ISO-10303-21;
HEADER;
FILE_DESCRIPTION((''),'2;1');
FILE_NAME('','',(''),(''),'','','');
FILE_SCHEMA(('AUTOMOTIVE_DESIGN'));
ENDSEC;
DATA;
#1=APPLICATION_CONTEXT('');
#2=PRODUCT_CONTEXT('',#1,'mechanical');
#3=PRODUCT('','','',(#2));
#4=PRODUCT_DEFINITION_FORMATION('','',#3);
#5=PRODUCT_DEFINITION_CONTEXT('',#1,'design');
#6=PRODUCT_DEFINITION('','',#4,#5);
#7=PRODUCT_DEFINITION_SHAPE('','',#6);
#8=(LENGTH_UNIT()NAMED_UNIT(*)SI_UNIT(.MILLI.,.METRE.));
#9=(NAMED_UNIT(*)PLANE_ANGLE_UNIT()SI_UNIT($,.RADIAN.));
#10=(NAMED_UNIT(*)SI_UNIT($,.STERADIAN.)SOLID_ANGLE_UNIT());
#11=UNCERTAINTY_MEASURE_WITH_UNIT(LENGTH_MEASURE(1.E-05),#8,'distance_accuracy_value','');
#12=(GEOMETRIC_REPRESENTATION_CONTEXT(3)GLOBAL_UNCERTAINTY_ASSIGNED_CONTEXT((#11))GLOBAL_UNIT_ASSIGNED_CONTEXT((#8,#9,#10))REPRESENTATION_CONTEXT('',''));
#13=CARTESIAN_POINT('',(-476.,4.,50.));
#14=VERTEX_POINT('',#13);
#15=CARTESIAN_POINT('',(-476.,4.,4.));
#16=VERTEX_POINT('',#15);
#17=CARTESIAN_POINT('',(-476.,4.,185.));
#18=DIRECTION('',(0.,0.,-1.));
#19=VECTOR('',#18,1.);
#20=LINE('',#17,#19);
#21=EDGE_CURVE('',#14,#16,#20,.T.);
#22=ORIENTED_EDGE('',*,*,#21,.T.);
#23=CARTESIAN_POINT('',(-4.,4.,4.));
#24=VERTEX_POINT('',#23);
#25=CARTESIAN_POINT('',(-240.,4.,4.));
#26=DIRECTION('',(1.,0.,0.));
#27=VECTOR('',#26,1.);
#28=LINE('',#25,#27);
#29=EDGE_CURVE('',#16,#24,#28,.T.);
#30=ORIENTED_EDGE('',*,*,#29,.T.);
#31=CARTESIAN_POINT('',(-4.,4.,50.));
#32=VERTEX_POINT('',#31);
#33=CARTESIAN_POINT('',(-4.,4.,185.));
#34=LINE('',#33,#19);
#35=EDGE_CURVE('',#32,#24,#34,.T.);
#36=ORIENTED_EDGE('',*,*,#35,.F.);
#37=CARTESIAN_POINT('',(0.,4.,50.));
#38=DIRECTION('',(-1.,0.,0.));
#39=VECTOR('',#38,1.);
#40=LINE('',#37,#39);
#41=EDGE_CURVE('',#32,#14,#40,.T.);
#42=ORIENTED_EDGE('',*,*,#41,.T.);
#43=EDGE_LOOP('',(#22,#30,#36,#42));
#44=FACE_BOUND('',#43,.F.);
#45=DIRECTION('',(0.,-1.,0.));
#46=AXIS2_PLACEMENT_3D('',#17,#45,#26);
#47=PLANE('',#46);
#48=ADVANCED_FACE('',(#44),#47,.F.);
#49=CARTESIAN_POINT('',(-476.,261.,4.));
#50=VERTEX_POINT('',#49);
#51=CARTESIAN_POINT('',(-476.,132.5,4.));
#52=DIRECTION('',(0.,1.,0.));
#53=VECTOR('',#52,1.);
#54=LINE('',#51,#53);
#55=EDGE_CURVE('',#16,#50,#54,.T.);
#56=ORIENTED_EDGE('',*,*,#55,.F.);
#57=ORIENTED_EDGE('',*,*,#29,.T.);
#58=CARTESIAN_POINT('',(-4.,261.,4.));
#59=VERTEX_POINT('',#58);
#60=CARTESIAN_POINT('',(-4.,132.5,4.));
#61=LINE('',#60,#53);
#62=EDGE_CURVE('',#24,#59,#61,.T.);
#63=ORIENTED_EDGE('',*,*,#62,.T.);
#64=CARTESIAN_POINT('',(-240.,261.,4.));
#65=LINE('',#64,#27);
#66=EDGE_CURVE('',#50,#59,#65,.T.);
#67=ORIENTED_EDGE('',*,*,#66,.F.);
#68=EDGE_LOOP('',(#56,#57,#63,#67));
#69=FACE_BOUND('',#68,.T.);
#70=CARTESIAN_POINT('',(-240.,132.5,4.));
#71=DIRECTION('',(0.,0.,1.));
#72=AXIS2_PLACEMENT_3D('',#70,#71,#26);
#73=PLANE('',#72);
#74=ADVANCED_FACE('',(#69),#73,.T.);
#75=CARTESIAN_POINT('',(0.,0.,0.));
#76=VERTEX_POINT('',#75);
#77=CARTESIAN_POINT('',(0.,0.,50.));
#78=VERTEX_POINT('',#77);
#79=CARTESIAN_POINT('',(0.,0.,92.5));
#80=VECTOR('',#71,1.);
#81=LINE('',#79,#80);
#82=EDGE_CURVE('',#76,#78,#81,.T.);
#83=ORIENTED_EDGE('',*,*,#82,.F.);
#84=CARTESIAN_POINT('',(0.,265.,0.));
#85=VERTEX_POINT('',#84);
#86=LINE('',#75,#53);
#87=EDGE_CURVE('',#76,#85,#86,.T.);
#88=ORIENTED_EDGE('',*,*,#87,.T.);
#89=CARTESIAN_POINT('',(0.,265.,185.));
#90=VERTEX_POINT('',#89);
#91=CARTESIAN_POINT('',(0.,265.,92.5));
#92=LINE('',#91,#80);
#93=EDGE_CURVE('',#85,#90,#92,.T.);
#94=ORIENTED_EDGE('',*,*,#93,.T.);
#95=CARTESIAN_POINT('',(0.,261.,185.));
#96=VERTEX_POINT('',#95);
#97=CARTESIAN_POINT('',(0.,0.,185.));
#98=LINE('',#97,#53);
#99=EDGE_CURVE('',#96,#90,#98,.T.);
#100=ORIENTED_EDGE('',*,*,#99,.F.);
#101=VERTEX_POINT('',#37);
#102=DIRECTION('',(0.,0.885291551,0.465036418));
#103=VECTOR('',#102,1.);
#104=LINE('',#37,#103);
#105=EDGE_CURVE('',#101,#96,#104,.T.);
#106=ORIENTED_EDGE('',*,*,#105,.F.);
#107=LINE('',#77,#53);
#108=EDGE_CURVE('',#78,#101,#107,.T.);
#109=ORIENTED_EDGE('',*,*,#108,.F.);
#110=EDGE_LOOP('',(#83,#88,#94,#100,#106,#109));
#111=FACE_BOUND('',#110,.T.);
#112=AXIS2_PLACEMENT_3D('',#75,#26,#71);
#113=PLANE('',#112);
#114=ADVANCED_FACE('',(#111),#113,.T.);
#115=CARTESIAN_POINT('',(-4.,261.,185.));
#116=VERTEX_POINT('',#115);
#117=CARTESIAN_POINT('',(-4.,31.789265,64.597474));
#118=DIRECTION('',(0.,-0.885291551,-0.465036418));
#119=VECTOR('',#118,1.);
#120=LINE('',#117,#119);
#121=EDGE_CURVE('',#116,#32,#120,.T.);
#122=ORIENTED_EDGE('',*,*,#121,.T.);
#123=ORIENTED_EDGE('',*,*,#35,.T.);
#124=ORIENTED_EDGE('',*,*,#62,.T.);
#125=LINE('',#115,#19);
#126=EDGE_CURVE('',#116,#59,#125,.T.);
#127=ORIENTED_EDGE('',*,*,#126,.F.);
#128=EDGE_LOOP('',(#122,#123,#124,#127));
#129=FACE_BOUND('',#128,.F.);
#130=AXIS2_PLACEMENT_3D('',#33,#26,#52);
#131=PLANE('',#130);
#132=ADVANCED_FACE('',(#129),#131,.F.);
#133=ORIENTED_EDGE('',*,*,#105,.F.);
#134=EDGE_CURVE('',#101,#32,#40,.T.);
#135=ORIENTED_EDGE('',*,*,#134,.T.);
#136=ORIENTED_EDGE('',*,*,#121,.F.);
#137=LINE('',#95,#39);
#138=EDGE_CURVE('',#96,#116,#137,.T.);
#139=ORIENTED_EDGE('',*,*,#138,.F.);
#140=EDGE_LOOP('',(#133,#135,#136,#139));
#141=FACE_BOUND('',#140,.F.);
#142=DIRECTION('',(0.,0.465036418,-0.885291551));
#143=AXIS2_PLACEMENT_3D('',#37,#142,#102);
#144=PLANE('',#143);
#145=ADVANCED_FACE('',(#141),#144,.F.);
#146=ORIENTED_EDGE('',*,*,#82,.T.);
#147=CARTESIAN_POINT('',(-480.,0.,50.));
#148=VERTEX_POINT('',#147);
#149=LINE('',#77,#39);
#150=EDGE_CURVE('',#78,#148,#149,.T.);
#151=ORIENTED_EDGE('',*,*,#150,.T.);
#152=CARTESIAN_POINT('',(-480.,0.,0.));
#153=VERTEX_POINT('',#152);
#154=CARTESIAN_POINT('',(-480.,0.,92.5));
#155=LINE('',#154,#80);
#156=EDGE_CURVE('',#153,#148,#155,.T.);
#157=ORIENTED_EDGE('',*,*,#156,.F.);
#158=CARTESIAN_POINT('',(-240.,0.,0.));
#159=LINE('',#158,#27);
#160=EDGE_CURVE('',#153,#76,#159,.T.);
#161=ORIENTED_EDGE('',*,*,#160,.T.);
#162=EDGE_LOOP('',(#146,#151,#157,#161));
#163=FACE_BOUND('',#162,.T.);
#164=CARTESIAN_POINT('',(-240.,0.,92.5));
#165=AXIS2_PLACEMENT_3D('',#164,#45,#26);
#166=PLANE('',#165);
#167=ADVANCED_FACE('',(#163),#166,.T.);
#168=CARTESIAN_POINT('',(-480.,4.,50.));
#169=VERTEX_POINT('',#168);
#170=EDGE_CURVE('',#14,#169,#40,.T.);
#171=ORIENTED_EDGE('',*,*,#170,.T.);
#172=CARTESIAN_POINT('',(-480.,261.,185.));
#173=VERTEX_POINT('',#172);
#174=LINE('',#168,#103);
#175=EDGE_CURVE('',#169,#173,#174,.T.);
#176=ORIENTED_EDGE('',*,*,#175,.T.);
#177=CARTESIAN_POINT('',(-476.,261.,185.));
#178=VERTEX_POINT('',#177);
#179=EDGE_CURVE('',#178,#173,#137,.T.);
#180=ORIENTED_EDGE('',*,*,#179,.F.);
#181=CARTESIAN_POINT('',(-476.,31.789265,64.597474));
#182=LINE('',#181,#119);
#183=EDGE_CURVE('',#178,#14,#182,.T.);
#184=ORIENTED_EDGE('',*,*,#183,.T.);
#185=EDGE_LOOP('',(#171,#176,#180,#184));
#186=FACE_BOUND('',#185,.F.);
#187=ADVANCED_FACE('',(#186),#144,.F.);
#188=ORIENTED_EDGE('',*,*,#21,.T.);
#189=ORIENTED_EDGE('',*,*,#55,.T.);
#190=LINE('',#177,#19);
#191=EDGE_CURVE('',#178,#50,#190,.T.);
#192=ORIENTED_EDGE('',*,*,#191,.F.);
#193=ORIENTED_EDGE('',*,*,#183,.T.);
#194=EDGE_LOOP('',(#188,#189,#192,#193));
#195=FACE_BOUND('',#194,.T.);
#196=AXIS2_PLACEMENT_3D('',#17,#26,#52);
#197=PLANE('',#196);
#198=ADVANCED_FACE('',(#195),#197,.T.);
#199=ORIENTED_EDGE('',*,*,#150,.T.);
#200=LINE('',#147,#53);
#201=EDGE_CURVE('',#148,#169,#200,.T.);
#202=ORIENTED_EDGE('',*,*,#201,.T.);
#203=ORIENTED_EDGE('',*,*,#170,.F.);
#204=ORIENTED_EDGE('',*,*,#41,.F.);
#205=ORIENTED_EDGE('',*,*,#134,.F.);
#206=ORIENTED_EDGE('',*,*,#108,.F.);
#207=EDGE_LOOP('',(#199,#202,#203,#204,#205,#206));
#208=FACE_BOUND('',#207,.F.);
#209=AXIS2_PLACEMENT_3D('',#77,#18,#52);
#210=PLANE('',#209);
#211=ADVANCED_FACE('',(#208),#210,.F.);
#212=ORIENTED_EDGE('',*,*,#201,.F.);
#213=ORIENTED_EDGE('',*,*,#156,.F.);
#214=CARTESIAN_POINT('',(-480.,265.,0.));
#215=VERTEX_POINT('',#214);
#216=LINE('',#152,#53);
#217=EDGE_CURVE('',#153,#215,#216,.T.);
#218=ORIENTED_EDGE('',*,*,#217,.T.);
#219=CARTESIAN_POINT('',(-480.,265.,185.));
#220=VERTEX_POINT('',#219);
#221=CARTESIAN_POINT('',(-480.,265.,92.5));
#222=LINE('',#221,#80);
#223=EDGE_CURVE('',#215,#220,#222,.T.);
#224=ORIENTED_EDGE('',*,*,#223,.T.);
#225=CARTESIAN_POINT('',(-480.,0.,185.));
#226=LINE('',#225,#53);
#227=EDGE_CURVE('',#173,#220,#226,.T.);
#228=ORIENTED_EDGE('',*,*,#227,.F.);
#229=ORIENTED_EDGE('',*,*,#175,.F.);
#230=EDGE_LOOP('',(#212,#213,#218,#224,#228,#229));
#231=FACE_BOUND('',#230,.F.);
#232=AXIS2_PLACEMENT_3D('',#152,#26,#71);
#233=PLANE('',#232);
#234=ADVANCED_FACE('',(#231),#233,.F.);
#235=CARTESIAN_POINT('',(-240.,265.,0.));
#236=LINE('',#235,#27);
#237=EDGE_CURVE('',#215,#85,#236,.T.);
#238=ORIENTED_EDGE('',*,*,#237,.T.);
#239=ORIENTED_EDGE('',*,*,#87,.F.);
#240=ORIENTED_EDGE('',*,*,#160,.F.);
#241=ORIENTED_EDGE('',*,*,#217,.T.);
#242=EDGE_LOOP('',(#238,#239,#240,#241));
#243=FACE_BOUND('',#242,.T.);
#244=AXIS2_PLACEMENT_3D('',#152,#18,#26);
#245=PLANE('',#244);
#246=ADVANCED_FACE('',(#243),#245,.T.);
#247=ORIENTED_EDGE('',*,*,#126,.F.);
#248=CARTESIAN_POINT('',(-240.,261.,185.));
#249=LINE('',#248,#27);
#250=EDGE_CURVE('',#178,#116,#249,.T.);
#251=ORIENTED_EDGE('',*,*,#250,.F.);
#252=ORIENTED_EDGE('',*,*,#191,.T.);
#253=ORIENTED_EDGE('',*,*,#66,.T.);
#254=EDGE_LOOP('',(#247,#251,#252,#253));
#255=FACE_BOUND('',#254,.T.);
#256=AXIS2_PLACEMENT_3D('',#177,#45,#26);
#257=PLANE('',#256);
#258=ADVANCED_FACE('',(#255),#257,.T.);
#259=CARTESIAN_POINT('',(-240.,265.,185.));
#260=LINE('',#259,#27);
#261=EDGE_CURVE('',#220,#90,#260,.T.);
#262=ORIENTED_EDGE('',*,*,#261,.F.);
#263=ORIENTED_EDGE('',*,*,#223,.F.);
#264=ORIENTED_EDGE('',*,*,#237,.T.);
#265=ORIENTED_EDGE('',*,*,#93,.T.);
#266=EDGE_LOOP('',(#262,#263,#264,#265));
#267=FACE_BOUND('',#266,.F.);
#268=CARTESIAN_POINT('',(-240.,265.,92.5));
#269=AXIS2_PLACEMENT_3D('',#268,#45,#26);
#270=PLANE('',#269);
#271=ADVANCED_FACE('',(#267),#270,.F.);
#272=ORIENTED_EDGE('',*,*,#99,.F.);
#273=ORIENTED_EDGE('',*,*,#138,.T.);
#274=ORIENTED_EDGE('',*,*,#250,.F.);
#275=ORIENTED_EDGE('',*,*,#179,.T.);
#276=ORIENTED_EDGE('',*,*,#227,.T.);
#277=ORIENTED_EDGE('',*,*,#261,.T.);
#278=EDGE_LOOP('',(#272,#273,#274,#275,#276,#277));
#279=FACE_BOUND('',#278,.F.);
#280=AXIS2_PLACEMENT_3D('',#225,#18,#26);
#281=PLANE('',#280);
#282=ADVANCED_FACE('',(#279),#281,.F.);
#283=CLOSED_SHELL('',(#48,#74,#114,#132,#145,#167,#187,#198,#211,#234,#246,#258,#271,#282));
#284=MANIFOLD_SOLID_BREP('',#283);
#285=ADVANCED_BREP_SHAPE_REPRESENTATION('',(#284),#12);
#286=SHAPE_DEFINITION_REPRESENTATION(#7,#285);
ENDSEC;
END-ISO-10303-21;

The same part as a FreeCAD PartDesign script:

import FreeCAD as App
import Part
import Sketcher
from FreeCAD import Vector


def add_polygon(sketch, points):
    """Adds a closed chain of lines whose ends are joined by coincident constraints."""
    first, n = sketch.GeometryCount, len(points)
    for a, b in zip(points, points[1:] + points[:1]):
        sketch.addGeometry(Part.LineSegment(App.Vector(*a, 0), App.Vector(*b, 0)), False)
    for i in range(n):
        sketch.addConstraint(Sketcher.Constraint("Coincident", first + i, 2, first + (i + 1) % n, 1))

doc = App.newDocument("Part")
body = doc.addObject("PartDesign::Body", "Body")

# Sketch on XZ plane
sketch1 = body.newObject("Sketcher::SketchObject", "Sketch")
sketch1.AttachmentSupport = (doc.getObject("XZ_Plane"), [""])
sketch1.MapMode = "FlatFace"
add_polygon(sketch1, [(-480, 185), (-480, 0), (0, 0), (0, 185)])  # lines 0-3
sketch1.addConstraint([
    Sketcher.Constraint("Vertical", 0),
    Sketcher.Constraint("Horizontal", 1),
    Sketcher.Constraint("Vertical", 2),
    Sketcher.Constraint("Horizontal", 3),
    Sketcher.Constraint("Coincident", 1, 2, -1, 1),
    Sketcher.Constraint("DistanceX", 1, 1, 1, 2, 480.0),
    Sketcher.Constraint("DistanceY", 0, 2, 0, 1, 185.0),
])
pad1 = body.newObject("PartDesign::Pad", "Pad")
pad1.Profile = sketch1
pad1.Length = 265
pad1.Reversed = True

# Sketch on YZ plane
sketch2 = body.newObject("Sketcher::SketchObject", "Sketch001")
sketch2.AttachmentSupport = (doc.getObject("YZ_Plane"), [""])
sketch2.MapMode = "FlatFace"
add_polygon(sketch2, [(0, 50), (4, 50), (261, 185), (0, 185)])  # lines 0-3
sketch2.addConstraint([
    Sketcher.Constraint("Horizontal", 0),
    Sketcher.Constraint("Horizontal", 2),
    Sketcher.Constraint("Vertical", 3),
    Sketcher.Constraint("PointOnObject", 2, 2, -2),
    Sketcher.Constraint("DistanceX", 0, 1, 0, 2, 4.0),
    Sketcher.Constraint("DistanceX", 2, 2, 2, 1, 261.0),
    Sketcher.Constraint("DistanceY", 3, 2, 3, 1, 135.0),
    Sketcher.Constraint("DistanceY", -1, 1, 0, 2, 50.0),
])
pocket1 = body.newObject("PartDesign::Pocket", "Pocket")
pocket1.Profile = sketch2
pocket1.Type = "ThroughAll"

# Sketch on XY plane
sketch3 = body.newObject("Sketcher::SketchObject", "Sketch002")
sketch3.AttachmentSupport = (doc.getObject("XY_Plane"), [""])
sketch3.MapMode = "FlatFace"
sketch3.AttachmentOffset = App.Placement(Vector(0, 0, 185), App.Rotation())
add_polygon(sketch3, [(-476, 261), (-476, 4), (-4, 4), (-4, 261)])  # lines 0-3
sketch3.addConstraint([
    Sketcher.Constraint("Vertical", 0),
    Sketcher.Constraint("Horizontal", 1),
    Sketcher.Constraint("Vertical", 2),
    Sketcher.Constraint("Horizontal", 3),
    Sketcher.Constraint("DistanceX", 1, 1, 1, 2, 472.0),
    Sketcher.Constraint("DistanceY", 0, 2, 0, 1, 257.0),
    Sketcher.Constraint("DistanceX", 0, 2, -1, 1, 476.0),
    Sketcher.Constraint("DistanceY", -1, 1, 0, 2, 4.0),
])
pocket2 = body.newObject("PartDesign::Pocket", "Pocket001")
pocket2.Profile = sketch3
pocket2.Length = 181

doc.recompute()
